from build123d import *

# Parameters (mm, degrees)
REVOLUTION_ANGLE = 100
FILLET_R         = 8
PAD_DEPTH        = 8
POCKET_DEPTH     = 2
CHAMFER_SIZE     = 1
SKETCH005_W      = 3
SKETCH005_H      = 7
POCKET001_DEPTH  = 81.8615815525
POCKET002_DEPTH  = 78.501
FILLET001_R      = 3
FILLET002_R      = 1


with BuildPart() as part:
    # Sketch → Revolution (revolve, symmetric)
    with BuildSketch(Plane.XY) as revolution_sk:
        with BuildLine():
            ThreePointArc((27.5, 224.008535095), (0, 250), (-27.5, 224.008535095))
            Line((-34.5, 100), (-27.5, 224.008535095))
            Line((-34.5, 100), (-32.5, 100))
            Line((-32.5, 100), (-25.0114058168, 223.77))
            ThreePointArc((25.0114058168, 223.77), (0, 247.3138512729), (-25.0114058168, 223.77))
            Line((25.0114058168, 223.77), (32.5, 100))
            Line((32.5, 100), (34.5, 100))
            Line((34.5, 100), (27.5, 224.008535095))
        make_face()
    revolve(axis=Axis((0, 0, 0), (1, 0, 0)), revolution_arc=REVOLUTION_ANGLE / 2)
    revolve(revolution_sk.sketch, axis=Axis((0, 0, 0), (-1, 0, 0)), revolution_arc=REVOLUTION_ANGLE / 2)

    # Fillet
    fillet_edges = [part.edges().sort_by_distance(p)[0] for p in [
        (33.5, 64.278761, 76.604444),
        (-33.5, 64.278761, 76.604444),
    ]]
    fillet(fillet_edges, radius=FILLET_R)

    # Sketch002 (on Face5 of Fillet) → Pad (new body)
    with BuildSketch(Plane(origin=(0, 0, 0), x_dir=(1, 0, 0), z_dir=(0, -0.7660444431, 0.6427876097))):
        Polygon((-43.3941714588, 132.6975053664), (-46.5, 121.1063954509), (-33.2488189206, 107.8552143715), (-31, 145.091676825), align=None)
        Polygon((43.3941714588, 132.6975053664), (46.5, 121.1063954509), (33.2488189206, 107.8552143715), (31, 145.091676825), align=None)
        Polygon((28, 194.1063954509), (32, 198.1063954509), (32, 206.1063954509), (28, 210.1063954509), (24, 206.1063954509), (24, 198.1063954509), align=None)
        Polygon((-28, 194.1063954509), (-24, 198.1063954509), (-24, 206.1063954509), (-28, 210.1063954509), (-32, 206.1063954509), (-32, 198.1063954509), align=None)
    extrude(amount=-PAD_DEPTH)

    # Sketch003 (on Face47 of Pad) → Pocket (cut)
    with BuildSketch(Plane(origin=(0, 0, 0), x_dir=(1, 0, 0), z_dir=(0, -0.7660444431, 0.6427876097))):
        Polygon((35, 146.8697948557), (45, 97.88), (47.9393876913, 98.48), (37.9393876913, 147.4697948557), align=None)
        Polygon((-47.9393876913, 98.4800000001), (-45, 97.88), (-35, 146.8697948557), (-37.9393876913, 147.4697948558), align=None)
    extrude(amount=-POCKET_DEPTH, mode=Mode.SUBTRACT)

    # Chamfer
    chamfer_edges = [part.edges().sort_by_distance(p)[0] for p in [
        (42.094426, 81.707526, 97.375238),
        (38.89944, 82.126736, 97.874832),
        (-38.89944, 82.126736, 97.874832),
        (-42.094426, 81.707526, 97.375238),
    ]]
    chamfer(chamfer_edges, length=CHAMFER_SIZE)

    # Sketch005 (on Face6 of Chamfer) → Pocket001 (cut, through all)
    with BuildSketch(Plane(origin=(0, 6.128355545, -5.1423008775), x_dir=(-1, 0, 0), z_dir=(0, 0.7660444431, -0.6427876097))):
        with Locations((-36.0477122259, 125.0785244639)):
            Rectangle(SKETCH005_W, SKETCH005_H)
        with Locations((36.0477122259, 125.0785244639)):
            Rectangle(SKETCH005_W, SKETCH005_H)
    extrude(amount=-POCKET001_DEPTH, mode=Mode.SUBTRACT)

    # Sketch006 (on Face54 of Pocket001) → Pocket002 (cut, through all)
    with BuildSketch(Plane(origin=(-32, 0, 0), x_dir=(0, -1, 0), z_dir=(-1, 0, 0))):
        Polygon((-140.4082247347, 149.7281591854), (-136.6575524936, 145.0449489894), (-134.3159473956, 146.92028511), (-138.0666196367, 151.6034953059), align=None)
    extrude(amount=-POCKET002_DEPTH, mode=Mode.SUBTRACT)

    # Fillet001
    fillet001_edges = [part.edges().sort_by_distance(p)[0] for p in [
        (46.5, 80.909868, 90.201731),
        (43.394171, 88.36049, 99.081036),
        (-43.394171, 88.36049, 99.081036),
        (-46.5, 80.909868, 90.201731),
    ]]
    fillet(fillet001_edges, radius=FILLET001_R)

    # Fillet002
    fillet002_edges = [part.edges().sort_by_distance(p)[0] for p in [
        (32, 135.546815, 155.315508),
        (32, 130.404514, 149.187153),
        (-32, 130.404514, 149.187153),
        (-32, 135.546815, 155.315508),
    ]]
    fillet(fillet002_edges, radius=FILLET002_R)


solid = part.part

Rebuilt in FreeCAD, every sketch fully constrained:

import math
import FreeCAD as App
import Part
import Sketcher
Q = App.Units.Quantity


def edges_at(feature, points):
    """Names of the edges that pass closest to the given points."""
    edges = feature.Shape.Edges
    near = lambda p: min(range(len(edges)), key=lambda i: edges[i].distToShape(Part.Vertex(*p))[0])
    return sorted({f"Edge{near(p) + 1}" for p in points})


def add_polygon(sketch, points):
    """Adds a closed chain of lines whose ends are joined by coincident constraints."""
    first, n = sketch.GeometryCount, len(points)
    for a, b in zip(points, points[1:] + points[:1]):
        sketch.addGeometry(Part.LineSegment(App.Vector(*a, 0), App.Vector(*b, 0)), False)
    for i in range(n):
        sketch.addConstraint(Sketcher.Constraint("Coincident", first + i, 2, first + (i + 1) % n, 1))

doc = App.newDocument("Part")
params = doc.addObject("Spreadsheet::Sheet", "Params")
for row, (alias, value) in enumerate([
    ("sketch1_width", "2 mm"),
    ("revolution_angle", "50 deg"),
    ("sketch2_width", "2 mm"),
    ("revolution2_angle", "50 deg"),
    ("fillet_radius", "8 mm"),
    ("sketch3_height", "8 mm"),
    ("sketch3_length", "12 mm"),
    ("sketch3_length2", "18.74 mm"),
    ("pad1_length", "8 mm"),
    ("sketch4_length", "50 mm"),
    ("sketch4_length2", "3 mm"),
    ("pocket1_length", "2 mm"),
    ("chamfer_size", "1 mm"),
    ("sketch5_width", "3 mm"),
    ("sketch5_height", "7 mm"),
    ("sketch6_length", "6 mm"),
    ("sketch6_length2", "3 mm"),
    ("fillet2_radius", "3 mm"),
    ("fillet3_radius", "1 mm"),
], start=1):
    params.set(f"A{row}", alias)
    params.set(f"B{row}", "=" + value)
    params.setAlias(f"B{row}", alias)

body = doc.addObject("PartDesign::Body", "Body")

# Sketch on XY plane
sketch1 = body.newObject("Sketcher::SketchObject", "Sketch")
sketch1.AttachmentSupport = (doc.getObject("XY_Plane"), [""])
sketch1.MapMode = "FlatFace"
sketch1.addGeometry(Part.ArcOfCircle(Part.Circle(App.Vector(0, 222.5, 0), App.Vector(0, 0, 1), 27.5), math.radians(3), math.radians(177)), False)
sketch1.addGeometry(Part.LineSegment(App.Vector(-27.5, 224, 0), App.Vector(-34.5, 100, 0)), False)
sketch1.addGeometry(Part.LineSegment(App.Vector(-34.5, 100, 0), App.Vector(-32.5, 100, 0)), False)
sketch1.addGeometry(Part.LineSegment(App.Vector(-32.5, 100, 0), App.Vector(-25, 223.8, 0)), False)
sketch1.addGeometry(Part.ArcOfCircle(Part.Circle(App.Vector(0, 222.3, 0), App.Vector(0, 0, 1), 25.1), math.radians(3), math.radians(177)), False)
sketch1.addGeometry(Part.LineSegment(App.Vector(25, 223.8, 0), App.Vector(32.5, 100, 0)), False)
sketch1.addGeometry(Part.LineSegment(App.Vector(32.5, 100, 0), App.Vector(34.5, 100, 0)), False)
sketch1.addGeometry(Part.LineSegment(App.Vector(34.5, 100, 0), App.Vector(27.5, 224, 0)), False)
sketch1.addConstraint(Sketcher.Constraint("Tangent", 0, 2, 1, 1))
sketch1.addConstraint(Sketcher.Constraint("Coincident", 1, 2, 2, 1))
sketch1.addConstraint(Sketcher.Constraint("Coincident", 2, 2, 3, 1))
sketch1.addConstraint(Sketcher.Constraint("Tangent", 3, 2, 4, 2))
sketch1.addConstraint(Sketcher.Constraint("Tangent", 4, 1, 5, 1))
sketch1.addConstraint(Sketcher.Constraint("Coincident", 5, 2, 6, 1))
sketch1.addConstraint(Sketcher.Constraint("Coincident", 6, 2, 7, 1))
sketch1.addConstraint(Sketcher.Constraint("Tangent", 7, 2, 0, 1))
sketch1.addConstraint(Sketcher.Constraint("Horizontal", 2))
sketch1.addConstraint(Sketcher.Constraint("Horizontal", 6))
sketch1.addConstraint(Sketcher.Constraint("Symmetric", 3, 2, 4, 1, -2))
sketch1.addConstraint(Sketcher.Constraint("Symmetric", 1, 2, 6, 2, -2))
sketch1.addConstraint(Sketcher.Constraint("PointOnObject", 0, 3, -2))
sketch1.addConstraint(Sketcher.Constraint("DistanceX", 2, 1, 2, 2, Q("2 mm")))
sketch1.addConstraint(Sketcher.Constraint("DistanceY", -1, 1, 1, 2, Q("100 mm")))
sketch1.addConstraint(Sketcher.Constraint("DistanceX", 1, 2, 0, 2, Q("7 mm")))
sketch1.addConstraint(Sketcher.Constraint("DistanceX", 2, 2, 5, 2, Q("65 mm")))
sketch1.addConstraint(Sketcher.Constraint("DistanceY", -1, 1, 3, 2, Q("223.77 mm")))
sketch1.addConstraint(Sketcher.Constraint("Radius", 4, Q("25.057144 mm")))
sketch1.addConstraint(Sketcher.Constraint("DistanceY", 4, 3, 0, 2, Q("1.751828 mm")))
sketch1.setExpression("Constraints[13]", "Params.sketch1_width")
revolution = body.newObject("PartDesign::Revolution", "Revolution")
revolution.Profile = sketch1
revolution.ReferenceAxis = (sketch1, ["H_Axis"])
revolution.setExpression("Angle", "Params.revolution_angle")

# Sketch on XY plane
sketch2 = body.newObject("Sketcher::SketchObject", "Sketch001")
sketch2.AttachmentSupport = (doc.getObject("XY_Plane"), [""])
sketch2.MapMode = "FlatFace"
sketch2.addGeometry(Part.ArcOfCircle(Part.Circle(App.Vector(0, 222.5, 0), App.Vector(0, 0, 1), 27.5), math.radians(3), math.radians(177)), False)
sketch2.addGeometry(Part.LineSegment(App.Vector(-27.5, 224, 0), App.Vector(-34.5, 100, 0)), False)
sketch2.addGeometry(Part.LineSegment(App.Vector(-34.5, 100, 0), App.Vector(-32.5, 100, 0)), False)
sketch2.addGeometry(Part.LineSegment(App.Vector(-32.5, 100, 0), App.Vector(-25, 223.8, 0)), False)
sketch2.addGeometry(Part.ArcOfCircle(Part.Circle(App.Vector(0, 222.3, 0), App.Vector(0, 0, 1), 25.1), math.radians(3), math.radians(177)), False)
sketch2.addGeometry(Part.LineSegment(App.Vector(25, 223.8, 0), App.Vector(32.5, 100, 0)), False)
sketch2.addGeometry(Part.LineSegment(App.Vector(32.5, 100, 0), App.Vector(34.5, 100, 0)), False)
sketch2.addGeometry(Part.LineSegment(App.Vector(34.5, 100, 0), App.Vector(27.5, 224, 0)), False)
sketch2.addConstraint(Sketcher.Constraint("Tangent", 0, 2, 1, 1))
sketch2.addConstraint(Sketcher.Constraint("Coincident", 1, 2, 2, 1))
sketch2.addConstraint(Sketcher.Constraint("Coincident", 2, 2, 3, 1))
sketch2.addConstraint(Sketcher.Constraint("Tangent", 3, 2, 4, 2))
sketch2.addConstraint(Sketcher.Constraint("Tangent", 4, 1, 5, 1))
sketch2.addConstraint(Sketcher.Constraint("Coincident", 5, 2, 6, 1))
sketch2.addConstraint(Sketcher.Constraint("Coincident", 6, 2, 7, 1))
sketch2.addConstraint(Sketcher.Constraint("Tangent", 7, 2, 0, 1))
sketch2.addConstraint(Sketcher.Constraint("Horizontal", 2))
sketch2.addConstraint(Sketcher.Constraint("Horizontal", 6))
sketch2.addConstraint(Sketcher.Constraint("Symmetric", 3, 2, 4, 1, -2))
sketch2.addConstraint(Sketcher.Constraint("Symmetric", 1, 2, 6, 2, -2))
sketch2.addConstraint(Sketcher.Constraint("PointOnObject", 0, 3, -2))
sketch2.addConstraint(Sketcher.Constraint("DistanceX", 2, 1, 2, 2, Q("2 mm")))
sketch2.addConstraint(Sketcher.Constraint("DistanceY", -1, 1, 1, 2, Q("100 mm")))
sketch2.addConstraint(Sketcher.Constraint("DistanceX", 1, 2, 0, 2, Q("7 mm")))
sketch2.addConstraint(Sketcher.Constraint("DistanceX", 2, 2, 5, 2, Q("65 mm")))
sketch2.addConstraint(Sketcher.Constraint("DistanceY", -1, 1, 3, 2, Q("223.77 mm")))
sketch2.addConstraint(Sketcher.Constraint("Radius", 4, Q("25.057144 mm")))
sketch2.addConstraint(Sketcher.Constraint("DistanceY", 4, 3, 0, 2, Q("1.751828 mm")))
sketch2.setExpression("Constraints[13]", "Params.sketch2_width")
revolution2 = body.newObject("PartDesign::Revolution", "Revolution001")
revolution2.Profile = sketch2
revolution2.ReferenceAxis = (sketch2, ["H_Axis"])
revolution2.setExpression("Angle", "Params.revolution2_angle")
revolution2.Reversed = True
doc.recompute()

fillet = body.newObject("PartDesign::Fillet", "Fillet")
fillet.Base = (revolution2, edges_at(revolution2, [(33.5, 64.279, 76.604), (-33.5, 64.279, 76.604)]))
fillet.setExpression("Radius", "Params.fillet_radius")

# Sketch on an angled plane
sketch3 = body.newObject("Sketcher::SketchObject", "Sketch002")
sketch3.Placement = App.Placement(App.Vector(0, 0, 0), App.Rotation(App.Vector(1, 0, 0), App.Vector(0, 0.64278761, 0.766044443), App.Vector(0, -0.766044443, 0.64278761), "ZXY"))
add_polygon(sketch3, [(-43, 133), (-46, 121), (-33, 108), (-31, 145)])  # lines 0-3
add_polygon(sketch3, [(46, 121), (43, 133), (31, 145), (33, 108)])  # lines 4-7
add_polygon(sketch3, [(28, 194), (32, 198), (32, 206), (28, 210), (24, 206), (24, 198)])  # lines 8-13
add_polygon(sketch3, [(-28, 194), (-24, 198), (-24, 206), (-28, 210), (-32, 206), (-32, 198)])  # lines 14-19
sketch3.addConstraint(Sketcher.Constraint("Vertical", 9))
sketch3.addConstraint(Sketcher.Constraint("Vertical", 12))
sketch3.addConstraint(Sketcher.Constraint("Vertical", 15))
sketch3.addConstraint(Sketcher.Constraint("Vertical", 18))
sketch3.addConstraint(Sketcher.Constraint("Symmetric", 3, 2, 4, 2, -2))
sketch3.addConstraint(Sketcher.Constraint("Symmetric", 2, 2, 5, 2, -2))
sketch3.addConstraint(Sketcher.Constraint("Symmetric", 1, 2, 6, 2, -2))
sketch3.addConstraint(Sketcher.Constraint("Symmetric", 0, 2, 7, 2, -2))
sketch3.addConstraint(Sketcher.Constraint("Symmetric", 12, 2, 14, 2, -2))
sketch3.addConstraint(Sketcher.Constraint("Symmetric", 10, 2, 16, 2, -2))
sketch3.addConstraint(Sketcher.Constraint("Symmetric", 9, 2, 17, 2, -2))
sketch3.addConstraint(Sketcher.Constraint("Symmetric", 13, 2, 19, 2, -2))
sketch3.addConstraint(Sketcher.Constraint("Perpendicular", 1, 3))
sketch3.addConstraint(Sketcher.Constraint("Perpendicular", 3, 5))
sketch3.addConstraint(Sketcher.Constraint("Parallel", 7, 8))
sketch3.addConstraint(Sketcher.Constraint("Perpendicular", 8, 10))
sketch3.addConstraint(Sketcher.Constraint("Perpendicular", 10, 11))
sketch3.addConstraint(Sketcher.Constraint("Perpendicular", 11, 13))
sketch3.addConstraint(Sketcher.Constraint("Perpendicular", 14, 16))
sketch3.addConstraint(Sketcher.Constraint("Perpendicular", 17, 19))
sketch3.addConstraint(Sketcher.Constraint("Horizontal", 9, 2, 11, 2))
sketch3.addConstraint(Sketcher.Constraint("Horizontal", 8, 2, 12, 2))
sketch3.addConstraint(Sketcher.Constraint("DistanceY", 9, 1, 9, 2, Q("8 mm")))
sketch3.addConstraint(Sketcher.Constraint("Angle", 0, Q("-105 deg")))
sketch3.addConstraint(Sketcher.Constraint("Distance", 0, Q("12 mm")))
sketch3.addConstraint(Sketcher.Constraint("DistanceX", 2, 2, -1, 1, Q("31 mm")))
sketch3.addConstraint(Sketcher.Constraint("DistanceX", -1, 1, 8, 2, Q("32 mm")))
sketch3.addConstraint(Sketcher.Constraint("DistanceX", -1, 1, 10, 2, Q("28 mm")))
sketch3.addConstraint(Sketcher.Constraint("DistanceY", 7, 2, 8, 2, Q("77 mm")))
sketch3.addConstraint(Sketcher.Constraint("DistanceX", 0, 2, -1, 1, Q("46.5 mm")))
sketch3.addConstraint(Sketcher.Constraint("Distance", 1, Q("18.74 mm")))
sketch3.addConstraint(Sketcher.Constraint("DistanceY", -1, 1, 0, 2, Q("121.106395 mm")))
sketch3.setExpression("Constraints[42]", "Params.sketch3_height")
sketch3.setExpression("Constraints[44]", "Params.sketch3_length")
sketch3.setExpression("Constraints[50]", "Params.sketch3_length2")
pad1 = body.newObject("PartDesign::Pad", "Pad")
pad1.Profile = sketch3
pad1.setExpression("Length", "Params.pad1_length")
pad1.Reversed = True

# Sketch on an angled plane
sketch4 = body.newObject("Sketcher::SketchObject", "Sketch003")
sketch4.Placement = App.Placement(App.Vector(0, 0, 0), App.Rotation(App.Vector(1, 0, 0), App.Vector(0, 0.64278761, 0.766044443), App.Vector(0, -0.766044443, 0.64278761), "ZXY"))
add_polygon(sketch4, [(35, 146.9), (45, 97.9), (47.9, 98.5), (37.9, 147.5)])  # lines 0-3
add_polygon(sketch4, [(-47.9, 98.5), (-45, 97.9), (-35, 146.9), (-37.9, 147.5)])  # lines 4-7
sketch4.addConstraint(Sketcher.Constraint("Symmetric", 0, 2, 4, 2, -2))
sketch4.addConstraint(Sketcher.Constraint("Symmetric", 3, 2, 5, 2, -2))
sketch4.addConstraint(Sketcher.Constraint("Symmetric", 2, 2, 6, 2, -2))
sketch4.addConstraint(Sketcher.Constraint("Symmetric", 1, 2, 7, 2, -2))
sketch4.addConstraint(Sketcher.Constraint("Perpendicular", 0, 1))
sketch4.addConstraint(Sketcher.Constraint("Perpendicular", 1, 2))
sketch4.addConstraint(Sketcher.Constraint("Perpendicular", 2, 3))
sketch4.addConstraint(Sketcher.Constraint("Distance", 0, Q("50 mm")))
sketch4.addConstraint(Sketcher.Constraint("Distance", 1, Q("3 mm")))
sketch4.addConstraint(Sketcher.Constraint("DistanceX", -1, 1, 0, 2, Q("45 mm")))
sketch4.addConstraint(Sketcher.Constraint("DistanceX", -1, 1, 3, 2, Q("35 mm")))
sketch4.addConstraint(Sketcher.Constraint("DistanceY", -1, 1, 0, 2, Q("97.88 mm")))
sketch4.setExpression("Constraints[15]", "Params.sketch4_length")
sketch4.setExpression("Constraints[16]", "Params.sketch4_length2")
pocket1 = body.newObject("PartDesign::Pocket", "Pocket")
pocket1.Profile = sketch4
pocket1.setExpression("Length", "Params.pocket1_length")
doc.recompute()

chamfer = body.newObject("PartDesign::Chamfer", "Chamfer")
chamfer.Base = (pocket1, edges_at(pocket1, [
    (42.094, 81.708, 97.375),
    (38.899, 82.127, 97.875),
    (-38.899, 82.127, 97.875),
    (-42.094, 81.708, 97.375),
]))
chamfer.setExpression("Size", "Params.chamfer_size")

# Sketch on an angled plane
sketch5 = body.newObject("Sketcher::SketchObject", "Sketch004")
sketch5.Placement = App.Placement(App.Vector(0, 6.128356, -5.142301), App.Rotation(App.Vector(-1, 0, 0), App.Vector(0, 0.64278761, 0.766044443), App.Vector(0, 0.766044443, -0.64278761), "ZXY"))
add_polygon(sketch5, [(-37.5, 128.6), (-37.5, 121.6), (-34.5, 121.6), (-34.5, 128.6)])  # lines 0-3
add_polygon(sketch5, [(34.5, 128.6), (34.5, 121.6), (37.5, 121.6), (37.5, 128.6)])  # lines 4-7
sketch5.addConstraint(Sketcher.Constraint("Vertical", 0))
sketch5.addConstraint(Sketcher.Constraint("Horizontal", 1))
sketch5.addConstraint(Sketcher.Constraint("Vertical", 2))
sketch5.addConstraint(Sketcher.Constraint("Horizontal", 3))
sketch5.addConstraint(Sketcher.Constraint("Vertical", 4))
sketch5.addConstraint(Sketcher.Constraint("Horizontal", 5))
sketch5.addConstraint(Sketcher.Constraint("Vertical", 6))
sketch5.addConstraint(Sketcher.Constraint("Horizontal", 7))
sketch5.addConstraint(Sketcher.Constraint("Symmetric", 1, 2, 4, 2, -2))
sketch5.addConstraint(Sketcher.Constraint("Symmetric", 3, 2, 6, 2, -2))
sketch5.addConstraint(Sketcher.Constraint("DistanceX", 1, 1, 1, 2, Q("3 mm")))
sketch5.addConstraint(Sketcher.Constraint("DistanceY", 0, 2, 0, 1, Q("7 mm")))
sketch5.addConstraint(Sketcher.Constraint("DistanceX", 0, 2, -1, 1, Q("37.547712 mm")))
sketch5.addConstraint(Sketcher.Constraint("DistanceY", -1, 1, 0, 2, Q("121.578524 mm")))
sketch5.setExpression("Constraints[18]", "Params.sketch5_width")
sketch5.setExpression("Constraints[19]", "Params.sketch5_height")
pocket2 = body.newObject("PartDesign::Pocket", "Pocket001")
pocket2.Profile = sketch5
pocket2.Type = "ThroughAll"

# Sketch on YZ plane
sketch6 = body.newObject("Sketcher::SketchObject", "Sketch005")
sketch6.AttachmentSupport = (doc.getObject("YZ_Plane"), [""])
sketch6.MapMode = "FlatFace"
sketch6.AttachmentOffset = App.Placement(App.Vector(0, 0, -32), App.Rotation())
add_polygon(sketch6, [(140.4, 149.7), (136.7, 145), (134.3, 146.9), (138.1, 151.6)])  # lines 0-3
sketch6.addConstraint(Sketcher.Constraint("Perpendicular", 0, 1))
sketch6.addConstraint(Sketcher.Constraint("Perpendicular", 1, 2))
sketch6.addConstraint(Sketcher.Constraint("Perpendicular", 2, 3))
sketch6.addConstraint(Sketcher.Constraint("Distance", 0, Q("6 mm")))
sketch6.addConstraint(Sketcher.Constraint("Distance", 1, Q("3 mm")))
sketch6.addConstraint(Sketcher.Constraint("DistanceY", -1, 1, 0, 2, Q("145.044949 mm")))
sketch6.addConstraint(Sketcher.Constraint("DistanceX", -1, 1, 2, 2, Q("138.06662 mm")))
sketch6.addConstraint(Sketcher.Constraint("DistanceY", -1, 1, 3, 2, Q("149.728159 mm")))
sketch6.setExpression("Constraints[7]", "Params.sketch6_length")
sketch6.setExpression("Constraints[8]", "Params.sketch6_length2")
pocket3 = body.newObject("PartDesign::Pocket", "Pocket002")
pocket3.Profile = sketch6
pocket3.Type = "ThroughAll"
pocket3.Reversed = True
doc.recompute()

fillet2 = body.newObject("PartDesign::Fillet", "Fillet001")
fillet2.Base = (pocket3, edges_at(pocket3, [
    (46.5, 80.91, 90.202),
    (43.394, 88.36, 99.081),
    (-43.394, 88.36, 99.081),
    (-46.5, 80.91, 90.202),
]))
fillet2.setExpression("Radius", "Params.fillet2_radius")
doc.recompute()

fillet3 = body.newObject("PartDesign::Fillet", "Fillet002")
fillet3.Base = (fillet2, edges_at(fillet2, [
    (32, 135.547, 155.316),
    (32, 130.405, 149.187),
    (-32, 130.405, 149.187),
    (-32, 135.547, 155.316),
]))
fillet3.setExpression("Radius", "Params.fillet3_radius")

doc.recompute()
